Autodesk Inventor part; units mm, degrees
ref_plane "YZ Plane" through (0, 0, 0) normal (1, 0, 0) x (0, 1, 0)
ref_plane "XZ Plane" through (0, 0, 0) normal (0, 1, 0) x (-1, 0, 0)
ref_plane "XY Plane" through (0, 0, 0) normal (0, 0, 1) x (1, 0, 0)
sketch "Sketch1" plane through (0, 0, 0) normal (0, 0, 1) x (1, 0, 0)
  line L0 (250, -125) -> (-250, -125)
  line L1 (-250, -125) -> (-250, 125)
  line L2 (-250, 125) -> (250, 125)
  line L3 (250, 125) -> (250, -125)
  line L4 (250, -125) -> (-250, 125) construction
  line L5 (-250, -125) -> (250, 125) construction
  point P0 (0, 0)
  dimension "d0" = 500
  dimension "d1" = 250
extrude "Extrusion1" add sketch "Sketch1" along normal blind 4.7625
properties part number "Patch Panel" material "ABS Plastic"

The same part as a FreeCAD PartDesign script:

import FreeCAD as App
import Part
import Sketcher

V = App.Vector

doc = App.newDocument("Part")
params = doc.addObject("Spreadsheet::Sheet", "Params")
for row, (alias, value) in enumerate([
    ("sketch1_width", "500 mm"),
    ("sketch1_height", "250 mm"),
    ("pad1_length", "4.7625 mm"),
], start=1):
    params.set(f"A{row}", alias)
    params.set(f"B{row}", "=" + value)
    params.setAlias(f"B{row}", alias)

body = doc.addObject("PartDesign::Body", "Body")

# Sketch on XY plane
sketch1 = doc.addObject("Sketcher::SketchObject", "Sketch")
body.addObject(sketch1)
sketch1.AttachmentSupport = (doc.XY_Plane, [""])
sketch1.MapMode = "FlatFace"
sketch1.addGeometry(Part.LineSegment(V(-250, -125, 0), V(250, -125, 0)), False)
sketch1.addGeometry(Part.LineSegment(V(250, -125, 0), V(250, 125, 0)), False)
sketch1.addGeometry(Part.LineSegment(V(250, 125, 0), V(-250, 125, 0)), False)
sketch1.addGeometry(Part.LineSegment(V(-250, 125, 0), V(-250, -125, 0)), False)
sketch1.addConstraint(Sketcher.Constraint("Coincident", 0, 2, 1, 1))
sketch1.addConstraint(Sketcher.Constraint("Coincident", 1, 2, 2, 1))
sketch1.addConstraint(Sketcher.Constraint("Coincident", 2, 2, 3, 1))
sketch1.addConstraint(Sketcher.Constraint("Coincident", 3, 2, 0, 1))
sketch1.addConstraint(Sketcher.Constraint("Horizontal", 0))
sketch1.addConstraint(Sketcher.Constraint("Vertical", 1))
sketch1.addConstraint(Sketcher.Constraint("Horizontal", 2))
sketch1.addConstraint(Sketcher.Constraint("Vertical", 3))
sketch1.addConstraint(Sketcher.Constraint("Symmetric", 0, 2, 2, 2, -1, 1))
sketch1.addConstraint(Sketcher.Constraint("DistanceX", 0, 1, 0, 2, 500.0))
sketch1.addConstraint(Sketcher.Constraint("DistanceY", 1, 1, 1, 2, 250.0))
sketch1.setExpression("Constraints[9]", "Params.sketch1_width")
sketch1.setExpression("Constraints[10]", "Params.sketch1_height")
pad1 = doc.addObject("PartDesign::Pad", "Pad")
body.addObject(pad1)
pad1.Profile = sketch1
pad1.setExpression("Length", "Params.pad1_length")

doc.recompute()
